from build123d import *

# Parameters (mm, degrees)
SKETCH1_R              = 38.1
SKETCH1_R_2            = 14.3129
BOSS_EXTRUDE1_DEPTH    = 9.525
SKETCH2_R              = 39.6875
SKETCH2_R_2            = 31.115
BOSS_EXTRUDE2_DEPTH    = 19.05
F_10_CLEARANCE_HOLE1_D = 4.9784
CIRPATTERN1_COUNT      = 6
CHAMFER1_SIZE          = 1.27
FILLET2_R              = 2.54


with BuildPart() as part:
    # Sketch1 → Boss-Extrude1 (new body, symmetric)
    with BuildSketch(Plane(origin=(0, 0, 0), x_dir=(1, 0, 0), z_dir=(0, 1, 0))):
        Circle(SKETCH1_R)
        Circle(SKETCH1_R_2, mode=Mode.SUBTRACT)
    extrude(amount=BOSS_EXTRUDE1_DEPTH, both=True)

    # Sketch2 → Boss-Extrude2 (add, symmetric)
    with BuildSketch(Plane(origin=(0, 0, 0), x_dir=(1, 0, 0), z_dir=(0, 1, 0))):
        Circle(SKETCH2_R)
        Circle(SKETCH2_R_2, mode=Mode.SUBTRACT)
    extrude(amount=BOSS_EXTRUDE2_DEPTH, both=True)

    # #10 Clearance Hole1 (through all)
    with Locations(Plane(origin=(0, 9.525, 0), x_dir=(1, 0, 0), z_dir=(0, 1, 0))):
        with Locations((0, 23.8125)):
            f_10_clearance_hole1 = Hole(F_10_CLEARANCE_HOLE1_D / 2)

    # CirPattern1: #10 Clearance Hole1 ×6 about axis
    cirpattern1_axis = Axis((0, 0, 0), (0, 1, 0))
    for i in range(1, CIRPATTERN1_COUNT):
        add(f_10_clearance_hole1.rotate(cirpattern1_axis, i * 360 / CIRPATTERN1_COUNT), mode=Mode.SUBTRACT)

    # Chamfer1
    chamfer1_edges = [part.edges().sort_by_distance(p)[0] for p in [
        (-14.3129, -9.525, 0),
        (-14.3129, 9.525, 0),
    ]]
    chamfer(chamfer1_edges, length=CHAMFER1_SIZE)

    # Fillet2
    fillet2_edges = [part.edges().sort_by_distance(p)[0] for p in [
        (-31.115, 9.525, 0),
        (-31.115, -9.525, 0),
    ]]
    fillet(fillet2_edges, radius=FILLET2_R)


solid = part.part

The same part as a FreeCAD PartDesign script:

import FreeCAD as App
import Part
import Sketcher

V = App.Vector
Q = App.Units.Quantity


def edges_at(feature, points):
    """Names of the edges that pass closest to the given points."""
    edges = feature.Shape.Edges
    near = lambda p: min(range(len(edges)), key=lambda i: edges[i].distToShape(Part.Vertex(*p))[0])
    return sorted({f"Edge{near(p) + 1}" for p in points})

doc = App.newDocument("Part")
body = doc.addObject("PartDesign::Body", "Body")

# Sketch on XZ plane
sketch1 = doc.addObject("Sketcher::SketchObject", "Sketch")
body.addObject(sketch1)
sketch1.AttachmentSupport = (doc.XZ_Plane, [""])
sketch1.MapMode = "FlatFace"
sketch1.addGeometry(Part.Circle(V(0, 0, 0), V(0, 0, 1), 38), False)
sketch1.addGeometry(Part.Circle(V(0, 0, 0), V(0, 0, 1), 14), False)
sketch1.addConstraint(Sketcher.Constraint("Coincident", 0, 3, -1, 1))
sketch1.addConstraint(Sketcher.Constraint("Coincident", 1, 3, -1, 1))
sketch1.addConstraint(Sketcher.Constraint("Diameter", 0, Q("3 in")))
sketch1.addConstraint(Sketcher.Constraint("Diameter", 1, Q("1.127 in")))
pad1 = doc.addObject("PartDesign::Pad", "Pad")
body.addObject(pad1)
pad1.Profile = sketch1
pad1.Length = Q("0.75 in")
pad1.Midplane = True

# Sketch on XZ plane
sketch2 = doc.addObject("Sketcher::SketchObject", "Sketch001")
body.addObject(sketch2)
sketch2.AttachmentSupport = (doc.XZ_Plane, [""])
sketch2.MapMode = "FlatFace"
sketch2.addGeometry(Part.Circle(V(0, 0, 0), V(0, 0, 1), 40), False)
sketch2.addGeometry(Part.Circle(V(0, 0, 0), V(0, 0, 1), 31), False)
sketch2.addConstraint(Sketcher.Constraint("Coincident", 0, 3, -1, 1))
sketch2.addConstraint(Sketcher.Constraint("Coincident", 1, 3, -1, 1))
sketch2.addConstraint(Sketcher.Constraint("Diameter", 1, Q("2.45 in")))
sketch2.addConstraint(Sketcher.Constraint("Diameter", 0, Q("3.125 in")))
pad2 = doc.addObject("PartDesign::Pad", "Pad001")
body.addObject(pad2)
pad2.Profile = sketch2
pad2.Length = Q("1.5 in")
pad2.Midplane = True

# Sketch on XZ plane
sketch3 = doc.addObject("Sketcher::SketchObject", "Sketch002")
body.addObject(sketch3)
sketch3.AttachmentSupport = (doc.XZ_Plane, [""])
sketch3.MapMode = "FlatFace"
sketch3.AttachmentOffset = App.Placement(V(0, 0, -0.375 * 25.4), App.Rotation())
sketch3.addGeometry(Part.Circle(V(0, -23.8, 0), V(0, 0, 1), 2.5), False)
sketch3.addConstraint(Sketcher.Constraint("PointOnObject", 0, 3, -2))
sketch3.addConstraint(Sketcher.Constraint("Diameter", 0, Q("0.196 in")))
sketch3.addConstraint(Sketcher.Constraint("DistanceY", 0, 3, -1, 1, Q("0.9375 in")))
doc.recompute()
hole = doc.addObject("PartDesign::Hole", "Hole")
body.addObject(hole)
hole.Profile = sketch3
hole.ThreadType = "None"
hole.Diameter = Q("0.196 in")
hole.DepthType = "ThroughAll"
hole.Reversed = True
doc.recompute()

polarpattern = doc.addObject("PartDesign::PolarPattern", "PolarPattern")
body.addObject(polarpattern)
polarpattern.Originals = [hole]
polarpattern.Axis = (doc.Y_Axis, [""])
polarpattern.Angle = 360
polarpattern.Occurrences = 6
body.Tip = polarpattern
doc.recompute()

chamfer = doc.addObject("PartDesign::Chamfer", "Chamfer")
body.addObject(chamfer)
chamfer.Base = (polarpattern, edges_at(polarpattern, [(-14.313, -9.525, 0), (-14.313, 9.525, 0)]))
chamfer.Size = Q("0.05 in")
doc.recompute()

fillet = doc.addObject("PartDesign::Fillet", "Fillet")
body.addObject(fillet)
fillet.Base = (chamfer, edges_at(chamfer, [(-31.115, 9.525, 0), (-31.115, -9.525, 0)]))
fillet.Radius = Q("0.1 in")

doc.recompute()
